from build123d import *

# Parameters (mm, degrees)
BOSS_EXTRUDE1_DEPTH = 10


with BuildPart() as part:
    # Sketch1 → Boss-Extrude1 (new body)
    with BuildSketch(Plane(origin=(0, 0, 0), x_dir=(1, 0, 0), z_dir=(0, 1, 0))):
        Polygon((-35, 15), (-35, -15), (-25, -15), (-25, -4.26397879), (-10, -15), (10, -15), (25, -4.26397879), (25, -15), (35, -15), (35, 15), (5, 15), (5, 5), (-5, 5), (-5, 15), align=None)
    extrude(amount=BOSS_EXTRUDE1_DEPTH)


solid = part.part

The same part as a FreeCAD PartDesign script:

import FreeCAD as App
import Part
import Sketcher

V = App.Vector

doc = App.newDocument("Part")
body = doc.addObject("PartDesign::Body", "Body")

sketch1 = body.newObject("Sketcher::SketchObject", "Sketch")
sketch1.AttachmentSupport = (doc.getObject("XZ_Plane"), [""])
sketch1.MapMode = "FlatFace"
sketch1.addGeometry(Part.LineSegment(V(-35, -15, 0), V(-35, 15, 0)), False)
sketch1.addGeometry(Part.LineSegment(V(-35, 15, 0), V(-25, 15, 0)), False)
sketch1.addGeometry(Part.LineSegment(V(-25, 15, 0), V(-25, 4.263979, 0)), False)
sketch1.addGeometry(Part.LineSegment(V(-25, 4.263979, 0), V(-10, 15, 0)), False)
sketch1.addGeometry(Part.LineSegment(V(-10, 15, 0), V(10, 15, 0)), False)
sketch1.addGeometry(Part.LineSegment(V(10, 15, 0), V(25, 4.263979, 0)), False)
sketch1.addGeometry(Part.LineSegment(V(25, 4.263979, 0), V(25, 15, 0)), False)
sketch1.addGeometry(Part.LineSegment(V(25, 15, 0), V(35, 15, 0)), False)
sketch1.addGeometry(Part.LineSegment(V(35, 15, 0), V(35, -15, 0)), False)
sketch1.addGeometry(Part.LineSegment(V(35, -15, 0), V(5, -15, 0)), False)
sketch1.addGeometry(Part.LineSegment(V(5, -15, 0), V(5, -5, 0)), False)
sketch1.addGeometry(Part.LineSegment(V(5, -5, 0), V(-5, -5, 0)), False)
sketch1.addGeometry(Part.LineSegment(V(-5, -5, 0), V(-5, -15, 0)), False)
sketch1.addGeometry(Part.LineSegment(V(-5, -15, 0), V(-35, -15, 0)), False)
sketch1.addConstraint(Sketcher.Constraint("Coincident", 0, 2, 1, 1))
sketch1.addConstraint(Sketcher.Constraint("Coincident", 1, 2, 2, 1))
sketch1.addConstraint(Sketcher.Constraint("Coincident", 2, 2, 3, 1))
sketch1.addConstraint(Sketcher.Constraint("Coincident", 3, 2, 4, 1))
sketch1.addConstraint(Sketcher.Constraint("Coincident", 4, 2, 5, 1))
sketch1.addConstraint(Sketcher.Constraint("Coincident", 5, 2, 6, 1))
sketch1.addConstraint(Sketcher.Constraint("Coincident", 6, 2, 7, 1))
sketch1.addConstraint(Sketcher.Constraint("Coincident", 7, 2, 8, 1))
sketch1.addConstraint(Sketcher.Constraint("Coincident", 8, 2, 9, 1))
sketch1.addConstraint(Sketcher.Constraint("Coincident", 9, 2, 10, 1))
sketch1.addConstraint(Sketcher.Constraint("Coincident", 10, 2, 11, 1))
sketch1.addConstraint(Sketcher.Constraint("Coincident", 11, 2, 12, 1))
sketch1.addConstraint(Sketcher.Constraint("Coincident", 12, 2, 13, 1))
sketch1.addConstraint(Sketcher.Constraint("Coincident", 13, 2, 0, 1))
sketch1.addConstraint(Sketcher.Constraint("Vertical", 0))
sketch1.addConstraint(Sketcher.Constraint("Horizontal", 1))
sketch1.addConstraint(Sketcher.Constraint("Vertical", 2))
sketch1.addConstraint(Sketcher.Constraint("Horizontal", 4))
sketch1.addConstraint(Sketcher.Constraint("Vertical", 6))
sketch1.addConstraint(Sketcher.Constraint("Horizontal", 7))
sketch1.addConstraint(Sketcher.Constraint("Vertical", 8))
sketch1.addConstraint(Sketcher.Constraint("Horizontal", 9))
sketch1.addConstraint(Sketcher.Constraint("Vertical", 10))
sketch1.addConstraint(Sketcher.Constraint("Horizontal", 11))
sketch1.addConstraint(Sketcher.Constraint("Vertical", 12))
sketch1.addConstraint(Sketcher.Constraint("Horizontal", 13))
sketch1.addConstraint(Sketcher.Constraint("Symmetric", 0, 2, 8, 2, -1, 1))
sketch1.addConstraint(Sketcher.Constraint("Symmetric", 2, 2, 5, 2, -2))
sketch1.addConstraint(Sketcher.Constraint("Symmetric", 9, 2, 12, 2, -2))
sketch1.addConstraint(Sketcher.Constraint("Horizontal", 1, 2, 3, 2))
sketch1.addConstraint(Sketcher.Constraint("Horizontal", 4, 2, 6, 2))
sketch1.addConstraint(Sketcher.Constraint("Equal", 7, 11))
sketch1.addConstraint(Sketcher.Constraint("Equal", 13, 0))
sketch1.addConstraint(Sketcher.Constraint("Equal", 11, 10))
sketch1.addConstraint(Sketcher.Constraint("Equal", 3, 5))
sketch1.addConstraint(Sketcher.Constraint("DistanceX", 1, 1, 1, 2, 10.0))
sketch1.addConstraint(Sketcher.Constraint("DistanceX", 4, 1, 4, 2, 20.0))
sketch1.addConstraint(Sketcher.Constraint("DistanceX", 9, 2, 9, 1, 30.0))
sketch1.addConstraint(Sketcher.Constraint("DistanceY", 2, 2, 2, 1, 10.736021))
pad1 = body.newObject("PartDesign::Pad", "Pad")
pad1.Profile = sketch1
pad1.Length = 10
pad1.Reversed = True

doc.recompute()
